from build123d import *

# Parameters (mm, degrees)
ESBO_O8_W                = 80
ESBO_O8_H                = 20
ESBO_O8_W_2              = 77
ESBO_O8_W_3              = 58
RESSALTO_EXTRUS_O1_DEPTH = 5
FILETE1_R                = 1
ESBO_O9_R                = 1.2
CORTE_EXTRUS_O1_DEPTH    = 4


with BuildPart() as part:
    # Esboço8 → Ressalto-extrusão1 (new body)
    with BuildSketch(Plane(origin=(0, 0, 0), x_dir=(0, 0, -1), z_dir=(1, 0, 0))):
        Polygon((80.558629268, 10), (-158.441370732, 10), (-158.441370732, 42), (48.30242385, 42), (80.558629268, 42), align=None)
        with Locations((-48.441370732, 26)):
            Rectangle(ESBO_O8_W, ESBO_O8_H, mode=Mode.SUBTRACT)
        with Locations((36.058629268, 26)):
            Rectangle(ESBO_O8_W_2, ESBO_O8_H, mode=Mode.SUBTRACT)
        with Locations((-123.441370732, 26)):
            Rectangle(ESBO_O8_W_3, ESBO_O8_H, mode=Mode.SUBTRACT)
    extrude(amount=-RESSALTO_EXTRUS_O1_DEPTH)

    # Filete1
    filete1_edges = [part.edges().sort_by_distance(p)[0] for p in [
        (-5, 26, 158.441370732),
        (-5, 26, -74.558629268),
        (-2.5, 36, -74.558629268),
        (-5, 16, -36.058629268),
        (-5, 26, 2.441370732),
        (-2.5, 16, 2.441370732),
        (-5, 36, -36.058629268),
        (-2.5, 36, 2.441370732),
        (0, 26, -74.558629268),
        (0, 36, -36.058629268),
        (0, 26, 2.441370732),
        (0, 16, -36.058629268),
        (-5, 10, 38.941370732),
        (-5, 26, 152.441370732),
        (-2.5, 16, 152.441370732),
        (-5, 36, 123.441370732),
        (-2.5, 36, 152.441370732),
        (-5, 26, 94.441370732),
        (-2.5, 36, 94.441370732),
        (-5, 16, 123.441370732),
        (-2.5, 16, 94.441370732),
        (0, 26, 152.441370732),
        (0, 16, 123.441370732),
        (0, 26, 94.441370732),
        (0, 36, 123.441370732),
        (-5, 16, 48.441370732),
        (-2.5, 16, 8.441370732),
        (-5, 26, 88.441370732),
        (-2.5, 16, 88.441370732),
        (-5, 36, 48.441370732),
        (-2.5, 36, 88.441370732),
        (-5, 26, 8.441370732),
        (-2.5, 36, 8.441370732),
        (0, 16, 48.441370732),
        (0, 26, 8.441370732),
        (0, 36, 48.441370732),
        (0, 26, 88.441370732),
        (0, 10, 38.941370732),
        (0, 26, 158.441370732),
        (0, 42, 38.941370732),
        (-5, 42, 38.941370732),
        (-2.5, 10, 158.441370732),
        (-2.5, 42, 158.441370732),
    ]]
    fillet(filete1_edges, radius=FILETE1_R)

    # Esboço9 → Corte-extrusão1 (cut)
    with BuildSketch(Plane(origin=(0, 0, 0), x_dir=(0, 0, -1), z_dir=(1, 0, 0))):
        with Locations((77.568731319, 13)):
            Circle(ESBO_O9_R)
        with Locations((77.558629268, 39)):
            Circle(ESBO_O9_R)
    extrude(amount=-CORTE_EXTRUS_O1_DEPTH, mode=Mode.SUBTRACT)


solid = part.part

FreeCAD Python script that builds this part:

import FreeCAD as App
import Part
import Sketcher
from FreeCAD import Vector


def edges_at(feature, points):
    """Names of the edges that pass closest to the given points."""
    edges = feature.Shape.Edges
    near = lambda p: min(range(len(edges)), key=lambda i: edges[i].distToShape(Part.Vertex(*p))[0])
    return sorted({f"Edge{near(p) + 1}" for p in points})


def add_polygon(sketch, points):
    """Adds a closed chain of lines whose ends are joined by coincident constraints."""
    first, n = sketch.GeometryCount, len(points)
    for a, b in zip(points, points[1:] + points[:1]):
        sketch.addGeometry(Part.LineSegment(App.Vector(*a, 0), App.Vector(*b, 0)), False)
    for i in range(n):
        sketch.addConstraint(Sketcher.Constraint("Coincident", first + i, 2, first + (i + 1) % n, 1))

doc = App.newDocument("Part")
body = doc.addObject("PartDesign::Body", "Body")

# Sketch on YZ plane
sketch1 = doc.addObject("Sketcher::SketchObject", "Sketch")
body.addObject(sketch1)
sketch1.AttachmentSupport = (doc.YZ_Plane, [""])
sketch1.MapMode = "FlatFace"
add_polygon(sketch1, [(10, 158), (10, -81), (42, -81), (42, 158)])  # lines 0-3
add_polygon(sketch1, [(16, 2), (36, 2), (36, -75), (16, -75)])  # lines 4-7
add_polygon(sketch1, [(16, 88), (36, 88), (36, 8), (16, 8)])  # lines 8-11
add_polygon(sketch1, [(16, 152), (36, 152), (36, 94), (16, 94)])  # lines 12-15
sketch1.addConstraint(Sketcher.Constraint("Vertical", 0))
sketch1.addConstraint(Sketcher.Constraint("Horizontal", 1))
sketch1.addConstraint(Sketcher.Constraint("Vertical", 2))
sketch1.addConstraint(Sketcher.Constraint("Horizontal", 3))
sketch1.addConstraint(Sketcher.Constraint("Horizontal", 4))
sketch1.addConstraint(Sketcher.Constraint("Vertical", 5))
sketch1.addConstraint(Sketcher.Constraint("Horizontal", 6))
sketch1.addConstraint(Sketcher.Constraint("Vertical", 7))
sketch1.addConstraint(Sketcher.Constraint("Horizontal", 8))
sketch1.addConstraint(Sketcher.Constraint("Vertical", 9))
sketch1.addConstraint(Sketcher.Constraint("Horizontal", 10))
sketch1.addConstraint(Sketcher.Constraint("Vertical", 11))
sketch1.addConstraint(Sketcher.Constraint("Horizontal", 12))
sketch1.addConstraint(Sketcher.Constraint("Vertical", 13))
sketch1.addConstraint(Sketcher.Constraint("Horizontal", 14))
sketch1.addConstraint(Sketcher.Constraint("Vertical", 15))
sketch1.addConstraint(Sketcher.Constraint("Vertical", 5, 2, 8, 2))
sketch1.addConstraint(Sketcher.Constraint("Vertical", 7, 2, 10, 2))
sketch1.addConstraint(Sketcher.Constraint("Vertical", 9, 2, 12, 2))
sketch1.addConstraint(Sketcher.Constraint("Vertical", 11, 2, 14, 2))
sketch1.addConstraint(Sketcher.Constraint("DistanceX", 1, 1, 1, 2, 32.0))
sketch1.addConstraint(Sketcher.Constraint("DistanceX", 4, 1, 4, 2, 20.0))
sketch1.addConstraint(Sketcher.Constraint("DistanceY", 0, 2, 0, 1, 239.0))
sketch1.addConstraint(Sketcher.Constraint("DistanceY", 5, 2, 5, 1, 77.0))
sketch1.addConstraint(Sketcher.Constraint("DistanceY", 9, 2, 9, 1, 80.0))
sketch1.addConstraint(Sketcher.Constraint("DistanceY", 13, 2, 13, 1, 58.0))
sketch1.addConstraint(Sketcher.Constraint("DistanceX", -1, 1, 0, 2, 10.0))
sketch1.addConstraint(Sketcher.Constraint("DistanceX", -1, 1, 4, 2, 36.0))
sketch1.addConstraint(Sketcher.Constraint("DistanceY", 1, 2, 4, 2, 83.0))
sketch1.addConstraint(Sketcher.Constraint("DistanceY", 8, 2, 2, 2, 70.0))
sketch1.addConstraint(Sketcher.Constraint("DistanceY", 12, 2, 2, 2, 6.0))
sketch1.addConstraint(Sketcher.Constraint("DistanceY", 0, 2, -1, 1, 80.558629))
pad1 = doc.addObject("PartDesign::Pad", "Pad")
body.addObject(pad1)
pad1.Profile = sketch1
pad1.Length = 5
pad1.Reversed = True
doc.recompute()

fillet = doc.addObject("PartDesign::Fillet", "Fillet")
body.addObject(fillet)
fillet.Base = (pad1, edges_at(pad1, [
    (-5, 26, 158.441),
    (-5, 26, -74.559),
    (-2.5, 36, -74.559),
    (-5, 16, -36.059),
    (-5, 26, 2.441),
    (-2.5, 16, 2.441),
    (-5, 36, -36.059),
    (-2.5, 36, 2.441),
    (0, 26, -74.559),
    (0, 36, -36.059),
    (0, 26, 2.441),
    (0, 16, -36.059),
    (-5, 10, 38.941),
    (-5, 26, 152.441),
    (-2.5, 16, 152.441),
    (-5, 36, 123.441),
    (-2.5, 36, 152.441),
    (-5, 26, 94.441),
    (-2.5, 36, 94.441),
    (-5, 16, 123.441),
    (-2.5, 16, 94.441),
    (0, 26, 152.441),
    (0, 16, 123.441),
    (0, 26, 94.441),
    (0, 36, 123.441),
    (-5, 16, 48.441),
    (-2.5, 16, 8.441),
    (-5, 26, 88.441),
    (-2.5, 16, 88.441),
    (-5, 36, 48.441),
    (-2.5, 36, 88.441),
    (-5, 26, 8.441),
    (-2.5, 36, 8.441),
    (0, 16, 48.441),
    (0, 26, 8.441),
    (0, 36, 48.441),
    (0, 26, 88.441),
    (0, 10, 38.941),
    (0, 26, 158.441),
    (0, 42, 38.941),
    (-5, 42, 38.941),
    (-2.5, 10, 158.441),
    (-2.5, 42, 158.441),
]))
fillet.Radius = 1

# Sketch on YZ plane
sketch2 = doc.addObject("Sketcher::SketchObject", "Sketch001")
body.addObject(sketch2)
sketch2.AttachmentSupport = (doc.YZ_Plane, [""])
sketch2.MapMode = "FlatFace"
sketch2.addGeometry(Part.Circle(Vector(13, -77.6, 0), Vector(0, 0, 1), 1.2), False)
sketch2.addGeometry(Part.Circle(Vector(39, -77.6, 0), Vector(0, 0, 1), 1.2), False)
sketch2.addConstraint(Sketcher.Constraint("Equal", 0, 1))
sketch2.addConstraint(Sketcher.Constraint("Diameter", 0, 2.4))
sketch2.addConstraint(Sketcher.Constraint("DistanceX", -1, 1, 0, 3, 13.0))
sketch2.addConstraint(Sketcher.Constraint("DistanceX", -1, 1, 1, 3, 39.0))
sketch2.addConstraint(Sketcher.Constraint("DistanceY", 0, 3, -1, 1, 77.568731))
sketch2.addConstraint(Sketcher.Constraint("DistanceY", 1, 3, -1, 1, 77.558629))
pocket1 = doc.addObject("PartDesign::Pocket", "Pocket")
body.addObject(pocket1)
pocket1.Profile = sketch2
pocket1.Length = 4

doc.recompute()
